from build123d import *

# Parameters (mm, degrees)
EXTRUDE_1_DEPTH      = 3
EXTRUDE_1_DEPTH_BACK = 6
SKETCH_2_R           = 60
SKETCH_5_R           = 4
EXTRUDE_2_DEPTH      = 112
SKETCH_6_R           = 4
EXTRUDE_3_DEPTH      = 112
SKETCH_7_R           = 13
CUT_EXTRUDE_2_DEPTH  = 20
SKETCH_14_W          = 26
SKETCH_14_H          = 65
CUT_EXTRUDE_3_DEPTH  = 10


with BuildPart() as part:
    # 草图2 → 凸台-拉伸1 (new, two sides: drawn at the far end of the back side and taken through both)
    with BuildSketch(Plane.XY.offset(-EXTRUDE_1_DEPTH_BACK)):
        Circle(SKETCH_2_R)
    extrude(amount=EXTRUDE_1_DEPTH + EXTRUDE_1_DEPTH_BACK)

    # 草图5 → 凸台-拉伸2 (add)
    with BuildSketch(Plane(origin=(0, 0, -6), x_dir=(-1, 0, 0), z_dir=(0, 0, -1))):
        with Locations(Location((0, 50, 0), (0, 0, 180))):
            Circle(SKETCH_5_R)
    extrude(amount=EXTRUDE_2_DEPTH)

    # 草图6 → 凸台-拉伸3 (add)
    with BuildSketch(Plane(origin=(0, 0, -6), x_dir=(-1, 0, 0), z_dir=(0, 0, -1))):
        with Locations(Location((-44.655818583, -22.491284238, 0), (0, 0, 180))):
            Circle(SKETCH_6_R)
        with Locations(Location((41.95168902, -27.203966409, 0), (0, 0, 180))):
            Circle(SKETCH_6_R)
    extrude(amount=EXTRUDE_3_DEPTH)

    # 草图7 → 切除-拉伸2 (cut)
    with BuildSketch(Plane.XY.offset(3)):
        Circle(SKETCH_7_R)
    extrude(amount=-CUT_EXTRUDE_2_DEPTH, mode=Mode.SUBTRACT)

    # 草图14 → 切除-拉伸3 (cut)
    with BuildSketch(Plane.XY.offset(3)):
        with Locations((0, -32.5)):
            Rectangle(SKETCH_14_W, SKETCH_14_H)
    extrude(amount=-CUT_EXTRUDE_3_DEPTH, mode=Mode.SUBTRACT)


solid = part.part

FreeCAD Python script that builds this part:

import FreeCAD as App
import Part
import Sketcher


def add_polygon(sketch, points):
    """Adds a closed chain of lines whose ends are joined by coincident constraints."""
    first, n = sketch.GeometryCount, len(points)
    for a, b in zip(points, points[1:] + points[:1]):
        sketch.addGeometry(Part.LineSegment(App.Vector(*a, 0), App.Vector(*b, 0)), False)
    for i in range(n):
        sketch.addConstraint(Sketcher.Constraint("Coincident", first + i, 2, first + (i + 1) % n, 1))

doc = App.newDocument("Part")
body = doc.addObject("PartDesign::Body", "Body")

# Sketch on XY plane
sketch1 = body.newObject("Sketcher::SketchObject", "Sketch")
sketch1.AttachmentSupport = (doc.getObject("XY_Plane"), [""])
sketch1.MapMode = "FlatFace"
sketch1.addGeometry(Part.Circle(App.Vector(0, 0, 0), App.Vector(0, 0, 1), 60), False)
sketch1.addConstraint(Sketcher.Constraint("Coincident", 0, 3, -1, 1))
sketch1.addConstraint(Sketcher.Constraint("Diameter", 0, 120.0))
pad1 = body.newObject("PartDesign::Pad", "Pad")
pad1.Profile = sketch1
pad1.Type = "TwoLengths"
pad1.Length = 3
pad1.Length2 = 6

# Sketch on XY plane
sketch2 = body.newObject("Sketcher::SketchObject", "Sketch001")
sketch2.AttachmentSupport = (doc.getObject("XY_Plane"), [""])
sketch2.MapMode = "FlatFace"
sketch2.AttachmentOffset = App.Placement(App.Vector(0, 0, -6), App.Rotation())
sketch2.addGeometry(Part.Circle(App.Vector(0, 50, 0), App.Vector(0, 0, 1), 4), False)
sketch2.addConstraint(Sketcher.Constraint("PointOnObject", 0, 3, -2))
sketch2.addConstraint(Sketcher.Constraint("Diameter", 0, 8.0))
sketch2.addConstraint(Sketcher.Constraint("DistanceY", -1, 1, 0, 3, 50.0))
pad2 = body.newObject("PartDesign::Pad", "Pad001")
pad2.Profile = sketch2
pad2.Length = 112
pad2.Reversed = True

# Sketch on XY plane
sketch3 = body.newObject("Sketcher::SketchObject", "Sketch002")
sketch3.AttachmentSupport = (doc.getObject("XY_Plane"), [""])
sketch3.MapMode = "FlatFace"
sketch3.AttachmentOffset = App.Placement(App.Vector(0, 0, -6), App.Rotation())
sketch3.addGeometry(Part.Circle(App.Vector(44.655819, -22.491284, 0), App.Vector(0, 0, 1), 4), False)
sketch3.addGeometry(Part.Circle(App.Vector(-41.951689, -27.203966, 0), App.Vector(0, 0, 1), 4), False)
sketch3.addConstraint(Sketcher.Constraint("Equal", 0, 1))
sketch3.addConstraint(Sketcher.Constraint("Diameter", 0, 8.0))
sketch3.addConstraint(Sketcher.Constraint("DistanceX", -1, 1, 0, 3, 44.655819))
sketch3.addConstraint(Sketcher.Constraint("DistanceX", 1, 3, -1, 1, 41.951689))
sketch3.addConstraint(Sketcher.Constraint("DistanceY", 0, 3, -1, 1, 22.491284))
sketch3.addConstraint(Sketcher.Constraint("DistanceY", 1, 3, -1, 1, 27.203966))
pad3 = body.newObject("PartDesign::Pad", "Pad002")
pad3.Profile = sketch3
pad3.Length = 112
pad3.Reversed = True

# Sketch on XY plane
sketch4 = body.newObject("Sketcher::SketchObject", "Sketch003")
sketch4.AttachmentSupport = (doc.getObject("XY_Plane"), [""])
sketch4.MapMode = "FlatFace"
sketch4.AttachmentOffset = App.Placement(App.Vector(0, 0, 3), App.Rotation())
sketch4.addGeometry(Part.Circle(App.Vector(0, 0, 0), App.Vector(0, 0, 1), 13), False)
sketch4.addConstraint(Sketcher.Constraint("Coincident", 0, 3, -1, 1))
sketch4.addConstraint(Sketcher.Constraint("Diameter", 0, 26.0))
pocket1 = body.newObject("PartDesign::Pocket", "Pocket")
pocket1.Profile = sketch4
pocket1.Length = 20

# Sketch on XY plane
sketch5 = body.newObject("Sketcher::SketchObject", "Sketch004")
sketch5.AttachmentSupport = (doc.getObject("XY_Plane"), [""])
sketch5.MapMode = "FlatFace"
sketch5.AttachmentOffset = App.Placement(App.Vector(0, 0, 3), App.Rotation())
add_polygon(sketch5, [(-13, 0), (-13, -65), (13, -65), (13, 0)])  # lines 0-3
sketch5.addConstraint(Sketcher.Constraint("Vertical", 0))
sketch5.addConstraint(Sketcher.Constraint("Horizontal", 1))
sketch5.addConstraint(Sketcher.Constraint("Vertical", 2))
sketch5.addConstraint(Sketcher.Constraint("Horizontal", 3))
sketch5.addConstraint(Sketcher.Constraint("Symmetric", 2, 2, 3, 2, -1, 1))
sketch5.addConstraint(Sketcher.Constraint("DistanceX", 1, 1, 1, 2, 26.0))
sketch5.addConstraint(Sketcher.Constraint("DistanceY", 0, 2, 0, 1, 65.0))
pocket2 = body.newObject("PartDesign::Pocket", "Pocket001")
pocket2.Profile = sketch5
pocket2.Length = 10

doc.recompute()
